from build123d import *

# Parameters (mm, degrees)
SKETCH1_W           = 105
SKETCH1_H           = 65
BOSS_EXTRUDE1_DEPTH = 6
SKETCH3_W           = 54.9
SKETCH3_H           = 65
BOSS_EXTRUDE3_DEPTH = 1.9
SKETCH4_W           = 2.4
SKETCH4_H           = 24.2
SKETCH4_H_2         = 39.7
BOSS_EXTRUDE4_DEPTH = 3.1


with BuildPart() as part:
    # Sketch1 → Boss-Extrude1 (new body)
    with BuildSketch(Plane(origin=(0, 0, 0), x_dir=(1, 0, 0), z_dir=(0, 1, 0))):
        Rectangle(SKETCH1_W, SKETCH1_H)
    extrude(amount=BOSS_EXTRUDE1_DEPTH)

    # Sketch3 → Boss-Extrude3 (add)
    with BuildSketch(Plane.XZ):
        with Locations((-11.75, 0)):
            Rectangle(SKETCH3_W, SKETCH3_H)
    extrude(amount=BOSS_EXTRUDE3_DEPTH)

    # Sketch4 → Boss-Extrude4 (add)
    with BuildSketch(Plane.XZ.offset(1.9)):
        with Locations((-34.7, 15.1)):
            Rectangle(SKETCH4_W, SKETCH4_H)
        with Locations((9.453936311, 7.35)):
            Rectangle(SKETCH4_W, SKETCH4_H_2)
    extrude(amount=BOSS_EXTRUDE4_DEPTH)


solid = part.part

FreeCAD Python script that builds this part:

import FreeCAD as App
import Part
import Sketcher
Q = App.Units.Quantity


def add_polygon(sketch, points):
    """Adds a closed chain of lines whose ends are joined by coincident constraints."""
    first, n = sketch.GeometryCount, len(points)
    for a, b in zip(points, points[1:] + points[:1]):
        sketch.addGeometry(Part.LineSegment(App.Vector(*a, 0), App.Vector(*b, 0)), False)
    for i in range(n):
        sketch.addConstraint(Sketcher.Constraint("Coincident", first + i, 2, first + (i + 1) % n, 1))

doc = App.newDocument("Part")
params = doc.addObject("Spreadsheet::Sheet", "Params")
for row, (alias, value) in enumerate([
    ("sketch1_width", "105 mm"),
    ("sketch1_height", "65 mm"),
    ("pad1_length", "6 mm"),
    ("sketch2_height", "65 mm"),
    ("sketch2_width", "54.9 mm"),
    ("pad2_length", "1.9 mm"),
    ("sketch3_width", "2.4 mm"),
    ("sketch3_height", "24.2 mm"),
    ("sketch3_height2", "39.7 mm"),
    ("pad3_length", "3.1 mm"),
], start=1):
    params.set(f"A{row}", alias)
    params.set(f"B{row}", "=" + value)
    params.setAlias(f"B{row}", alias)

body = doc.addObject("PartDesign::Body", "Body")

sketch1 = body.newObject("Sketcher::SketchObject", "Sketch")
sketch1.AttachmentSupport = (doc.getObject("XZ_Plane"), [""])
sketch1.MapMode = "FlatFace"
add_polygon(sketch1, [(-52, -32), (-52, 32), (52, 32), (52, -32)])
sketch1.addConstraint([
    Sketcher.Constraint("Vertical", 0),
    Sketcher.Constraint("Horizontal", 1),
    Sketcher.Constraint("Vertical", 2),
    Sketcher.Constraint("Horizontal", 3),
    Sketcher.Constraint("Symmetric", 0, 2, 2, 2, -1, 1),
    Sketcher.Constraint("DistanceX", 1, 1, 1, 2, Q("105 mm")),
    Sketcher.Constraint("DistanceY", 0, 1, 0, 2, Q("65 mm")),
])
sketch1.setExpression("Constraints[9]", "Params.sketch1_width")
sketch1.setExpression("Constraints[10]", "Params.sketch1_height")
pad1 = body.newObject("PartDesign::Pad", "Pad")
pad1.Profile = sketch1
pad1.setExpression("Length", "Params.pad1_length")
pad1.Reversed = True

sketch2 = body.newObject("Sketcher::SketchObject", "Sketch001")
sketch2.AttachmentSupport = (doc.getObject("XZ_Plane"), [""])
sketch2.MapMode = "FlatFace"
add_polygon(sketch2, [(-39, 32), (-39, -32), (16, -32), (16, 32)])
sketch2.addConstraint([
    Sketcher.Constraint("Vertical", 0),
    Sketcher.Constraint("Horizontal", 1),
    Sketcher.Constraint("Vertical", 2),
    Sketcher.Constraint("Horizontal", 3),
    Sketcher.Constraint("DistanceY", 0, 2, 0, 1, Q("65 mm")),
    Sketcher.Constraint("DistanceX", 1, 1, 1, 2, Q("54.9 mm")),
    Sketcher.Constraint("DistanceX", 0, 2, -1, 1, Q("39.2 mm")),
    Sketcher.Constraint("DistanceY", 0, 2, -1, 1, Q("32.5 mm")),
])
sketch2.setExpression("Constraints[8]", "Params.sketch2_height")
sketch2.setExpression("Constraints[9]", "Params.sketch2_width")
pad2 = body.newObject("PartDesign::Pad", "Pad001")
pad2.Profile = sketch2
pad2.setExpression("Length", "Params.pad2_length")

sketch3 = body.newObject("Sketcher::SketchObject", "Sketch002")
sketch3.AttachmentSupport = (doc.getObject("XZ_Plane"), [""])
sketch3.MapMode = "FlatFace"
sketch3.AttachmentOffset = App.Placement(App.Vector(0, 0, 1.9), App.Rotation())
add_polygon(sketch3, [(-35.9, 27.2), (-35.9, 3), (-33.5, 3), (-33.5, 27.2)])
add_polygon(sketch3, [(8.3, 27.2), (8.3, -12.5), (10.7, -12.5), (10.7, 27.2)])
sketch3.addConstraint([
    Sketcher.Constraint("Vertical", 0),
    Sketcher.Constraint("Horizontal", 1),
    Sketcher.Constraint("Vertical", 2),
    Sketcher.Constraint("Horizontal", 3),
    Sketcher.Constraint("Vertical", 4),
    Sketcher.Constraint("Horizontal", 5),
    Sketcher.Constraint("Vertical", 6),
    Sketcher.Constraint("Horizontal", 7),
    Sketcher.Constraint("Horizontal", 3, 2, 6, 2),
    Sketcher.Constraint("Equal", 3, 5),
    Sketcher.Constraint("DistanceX", 1, 1, 1, 2, Q("2.4 mm")),
    Sketcher.Constraint("DistanceY", 0, 2, 0, 1, Q("24.2 mm")),
    Sketcher.Constraint("DistanceY", 4, 2, 4, 1, Q("39.7 mm")),
    Sketcher.Constraint("DistanceY", -1, 1, 0, 2, Q("3 mm")),
    Sketcher.Constraint("DistanceX", 0, 2, -1, 1, Q("35.9 mm")),
    Sketcher.Constraint("DistanceX", -1, 1, 4, 2, Q("8.253936 mm")),
])
sketch3.setExpression("Constraints[18]", "Params.sketch3_width")
sketch3.setExpression("Constraints[19]", "Params.sketch3_height")
sketch3.setExpression("Constraints[20]", "Params.sketch3_height2")
pad3 = body.newObject("PartDesign::Pad", "Pad002")
pad3.Profile = sketch3
pad3.setExpression("Length", "Params.pad3_length")

doc.recompute()
